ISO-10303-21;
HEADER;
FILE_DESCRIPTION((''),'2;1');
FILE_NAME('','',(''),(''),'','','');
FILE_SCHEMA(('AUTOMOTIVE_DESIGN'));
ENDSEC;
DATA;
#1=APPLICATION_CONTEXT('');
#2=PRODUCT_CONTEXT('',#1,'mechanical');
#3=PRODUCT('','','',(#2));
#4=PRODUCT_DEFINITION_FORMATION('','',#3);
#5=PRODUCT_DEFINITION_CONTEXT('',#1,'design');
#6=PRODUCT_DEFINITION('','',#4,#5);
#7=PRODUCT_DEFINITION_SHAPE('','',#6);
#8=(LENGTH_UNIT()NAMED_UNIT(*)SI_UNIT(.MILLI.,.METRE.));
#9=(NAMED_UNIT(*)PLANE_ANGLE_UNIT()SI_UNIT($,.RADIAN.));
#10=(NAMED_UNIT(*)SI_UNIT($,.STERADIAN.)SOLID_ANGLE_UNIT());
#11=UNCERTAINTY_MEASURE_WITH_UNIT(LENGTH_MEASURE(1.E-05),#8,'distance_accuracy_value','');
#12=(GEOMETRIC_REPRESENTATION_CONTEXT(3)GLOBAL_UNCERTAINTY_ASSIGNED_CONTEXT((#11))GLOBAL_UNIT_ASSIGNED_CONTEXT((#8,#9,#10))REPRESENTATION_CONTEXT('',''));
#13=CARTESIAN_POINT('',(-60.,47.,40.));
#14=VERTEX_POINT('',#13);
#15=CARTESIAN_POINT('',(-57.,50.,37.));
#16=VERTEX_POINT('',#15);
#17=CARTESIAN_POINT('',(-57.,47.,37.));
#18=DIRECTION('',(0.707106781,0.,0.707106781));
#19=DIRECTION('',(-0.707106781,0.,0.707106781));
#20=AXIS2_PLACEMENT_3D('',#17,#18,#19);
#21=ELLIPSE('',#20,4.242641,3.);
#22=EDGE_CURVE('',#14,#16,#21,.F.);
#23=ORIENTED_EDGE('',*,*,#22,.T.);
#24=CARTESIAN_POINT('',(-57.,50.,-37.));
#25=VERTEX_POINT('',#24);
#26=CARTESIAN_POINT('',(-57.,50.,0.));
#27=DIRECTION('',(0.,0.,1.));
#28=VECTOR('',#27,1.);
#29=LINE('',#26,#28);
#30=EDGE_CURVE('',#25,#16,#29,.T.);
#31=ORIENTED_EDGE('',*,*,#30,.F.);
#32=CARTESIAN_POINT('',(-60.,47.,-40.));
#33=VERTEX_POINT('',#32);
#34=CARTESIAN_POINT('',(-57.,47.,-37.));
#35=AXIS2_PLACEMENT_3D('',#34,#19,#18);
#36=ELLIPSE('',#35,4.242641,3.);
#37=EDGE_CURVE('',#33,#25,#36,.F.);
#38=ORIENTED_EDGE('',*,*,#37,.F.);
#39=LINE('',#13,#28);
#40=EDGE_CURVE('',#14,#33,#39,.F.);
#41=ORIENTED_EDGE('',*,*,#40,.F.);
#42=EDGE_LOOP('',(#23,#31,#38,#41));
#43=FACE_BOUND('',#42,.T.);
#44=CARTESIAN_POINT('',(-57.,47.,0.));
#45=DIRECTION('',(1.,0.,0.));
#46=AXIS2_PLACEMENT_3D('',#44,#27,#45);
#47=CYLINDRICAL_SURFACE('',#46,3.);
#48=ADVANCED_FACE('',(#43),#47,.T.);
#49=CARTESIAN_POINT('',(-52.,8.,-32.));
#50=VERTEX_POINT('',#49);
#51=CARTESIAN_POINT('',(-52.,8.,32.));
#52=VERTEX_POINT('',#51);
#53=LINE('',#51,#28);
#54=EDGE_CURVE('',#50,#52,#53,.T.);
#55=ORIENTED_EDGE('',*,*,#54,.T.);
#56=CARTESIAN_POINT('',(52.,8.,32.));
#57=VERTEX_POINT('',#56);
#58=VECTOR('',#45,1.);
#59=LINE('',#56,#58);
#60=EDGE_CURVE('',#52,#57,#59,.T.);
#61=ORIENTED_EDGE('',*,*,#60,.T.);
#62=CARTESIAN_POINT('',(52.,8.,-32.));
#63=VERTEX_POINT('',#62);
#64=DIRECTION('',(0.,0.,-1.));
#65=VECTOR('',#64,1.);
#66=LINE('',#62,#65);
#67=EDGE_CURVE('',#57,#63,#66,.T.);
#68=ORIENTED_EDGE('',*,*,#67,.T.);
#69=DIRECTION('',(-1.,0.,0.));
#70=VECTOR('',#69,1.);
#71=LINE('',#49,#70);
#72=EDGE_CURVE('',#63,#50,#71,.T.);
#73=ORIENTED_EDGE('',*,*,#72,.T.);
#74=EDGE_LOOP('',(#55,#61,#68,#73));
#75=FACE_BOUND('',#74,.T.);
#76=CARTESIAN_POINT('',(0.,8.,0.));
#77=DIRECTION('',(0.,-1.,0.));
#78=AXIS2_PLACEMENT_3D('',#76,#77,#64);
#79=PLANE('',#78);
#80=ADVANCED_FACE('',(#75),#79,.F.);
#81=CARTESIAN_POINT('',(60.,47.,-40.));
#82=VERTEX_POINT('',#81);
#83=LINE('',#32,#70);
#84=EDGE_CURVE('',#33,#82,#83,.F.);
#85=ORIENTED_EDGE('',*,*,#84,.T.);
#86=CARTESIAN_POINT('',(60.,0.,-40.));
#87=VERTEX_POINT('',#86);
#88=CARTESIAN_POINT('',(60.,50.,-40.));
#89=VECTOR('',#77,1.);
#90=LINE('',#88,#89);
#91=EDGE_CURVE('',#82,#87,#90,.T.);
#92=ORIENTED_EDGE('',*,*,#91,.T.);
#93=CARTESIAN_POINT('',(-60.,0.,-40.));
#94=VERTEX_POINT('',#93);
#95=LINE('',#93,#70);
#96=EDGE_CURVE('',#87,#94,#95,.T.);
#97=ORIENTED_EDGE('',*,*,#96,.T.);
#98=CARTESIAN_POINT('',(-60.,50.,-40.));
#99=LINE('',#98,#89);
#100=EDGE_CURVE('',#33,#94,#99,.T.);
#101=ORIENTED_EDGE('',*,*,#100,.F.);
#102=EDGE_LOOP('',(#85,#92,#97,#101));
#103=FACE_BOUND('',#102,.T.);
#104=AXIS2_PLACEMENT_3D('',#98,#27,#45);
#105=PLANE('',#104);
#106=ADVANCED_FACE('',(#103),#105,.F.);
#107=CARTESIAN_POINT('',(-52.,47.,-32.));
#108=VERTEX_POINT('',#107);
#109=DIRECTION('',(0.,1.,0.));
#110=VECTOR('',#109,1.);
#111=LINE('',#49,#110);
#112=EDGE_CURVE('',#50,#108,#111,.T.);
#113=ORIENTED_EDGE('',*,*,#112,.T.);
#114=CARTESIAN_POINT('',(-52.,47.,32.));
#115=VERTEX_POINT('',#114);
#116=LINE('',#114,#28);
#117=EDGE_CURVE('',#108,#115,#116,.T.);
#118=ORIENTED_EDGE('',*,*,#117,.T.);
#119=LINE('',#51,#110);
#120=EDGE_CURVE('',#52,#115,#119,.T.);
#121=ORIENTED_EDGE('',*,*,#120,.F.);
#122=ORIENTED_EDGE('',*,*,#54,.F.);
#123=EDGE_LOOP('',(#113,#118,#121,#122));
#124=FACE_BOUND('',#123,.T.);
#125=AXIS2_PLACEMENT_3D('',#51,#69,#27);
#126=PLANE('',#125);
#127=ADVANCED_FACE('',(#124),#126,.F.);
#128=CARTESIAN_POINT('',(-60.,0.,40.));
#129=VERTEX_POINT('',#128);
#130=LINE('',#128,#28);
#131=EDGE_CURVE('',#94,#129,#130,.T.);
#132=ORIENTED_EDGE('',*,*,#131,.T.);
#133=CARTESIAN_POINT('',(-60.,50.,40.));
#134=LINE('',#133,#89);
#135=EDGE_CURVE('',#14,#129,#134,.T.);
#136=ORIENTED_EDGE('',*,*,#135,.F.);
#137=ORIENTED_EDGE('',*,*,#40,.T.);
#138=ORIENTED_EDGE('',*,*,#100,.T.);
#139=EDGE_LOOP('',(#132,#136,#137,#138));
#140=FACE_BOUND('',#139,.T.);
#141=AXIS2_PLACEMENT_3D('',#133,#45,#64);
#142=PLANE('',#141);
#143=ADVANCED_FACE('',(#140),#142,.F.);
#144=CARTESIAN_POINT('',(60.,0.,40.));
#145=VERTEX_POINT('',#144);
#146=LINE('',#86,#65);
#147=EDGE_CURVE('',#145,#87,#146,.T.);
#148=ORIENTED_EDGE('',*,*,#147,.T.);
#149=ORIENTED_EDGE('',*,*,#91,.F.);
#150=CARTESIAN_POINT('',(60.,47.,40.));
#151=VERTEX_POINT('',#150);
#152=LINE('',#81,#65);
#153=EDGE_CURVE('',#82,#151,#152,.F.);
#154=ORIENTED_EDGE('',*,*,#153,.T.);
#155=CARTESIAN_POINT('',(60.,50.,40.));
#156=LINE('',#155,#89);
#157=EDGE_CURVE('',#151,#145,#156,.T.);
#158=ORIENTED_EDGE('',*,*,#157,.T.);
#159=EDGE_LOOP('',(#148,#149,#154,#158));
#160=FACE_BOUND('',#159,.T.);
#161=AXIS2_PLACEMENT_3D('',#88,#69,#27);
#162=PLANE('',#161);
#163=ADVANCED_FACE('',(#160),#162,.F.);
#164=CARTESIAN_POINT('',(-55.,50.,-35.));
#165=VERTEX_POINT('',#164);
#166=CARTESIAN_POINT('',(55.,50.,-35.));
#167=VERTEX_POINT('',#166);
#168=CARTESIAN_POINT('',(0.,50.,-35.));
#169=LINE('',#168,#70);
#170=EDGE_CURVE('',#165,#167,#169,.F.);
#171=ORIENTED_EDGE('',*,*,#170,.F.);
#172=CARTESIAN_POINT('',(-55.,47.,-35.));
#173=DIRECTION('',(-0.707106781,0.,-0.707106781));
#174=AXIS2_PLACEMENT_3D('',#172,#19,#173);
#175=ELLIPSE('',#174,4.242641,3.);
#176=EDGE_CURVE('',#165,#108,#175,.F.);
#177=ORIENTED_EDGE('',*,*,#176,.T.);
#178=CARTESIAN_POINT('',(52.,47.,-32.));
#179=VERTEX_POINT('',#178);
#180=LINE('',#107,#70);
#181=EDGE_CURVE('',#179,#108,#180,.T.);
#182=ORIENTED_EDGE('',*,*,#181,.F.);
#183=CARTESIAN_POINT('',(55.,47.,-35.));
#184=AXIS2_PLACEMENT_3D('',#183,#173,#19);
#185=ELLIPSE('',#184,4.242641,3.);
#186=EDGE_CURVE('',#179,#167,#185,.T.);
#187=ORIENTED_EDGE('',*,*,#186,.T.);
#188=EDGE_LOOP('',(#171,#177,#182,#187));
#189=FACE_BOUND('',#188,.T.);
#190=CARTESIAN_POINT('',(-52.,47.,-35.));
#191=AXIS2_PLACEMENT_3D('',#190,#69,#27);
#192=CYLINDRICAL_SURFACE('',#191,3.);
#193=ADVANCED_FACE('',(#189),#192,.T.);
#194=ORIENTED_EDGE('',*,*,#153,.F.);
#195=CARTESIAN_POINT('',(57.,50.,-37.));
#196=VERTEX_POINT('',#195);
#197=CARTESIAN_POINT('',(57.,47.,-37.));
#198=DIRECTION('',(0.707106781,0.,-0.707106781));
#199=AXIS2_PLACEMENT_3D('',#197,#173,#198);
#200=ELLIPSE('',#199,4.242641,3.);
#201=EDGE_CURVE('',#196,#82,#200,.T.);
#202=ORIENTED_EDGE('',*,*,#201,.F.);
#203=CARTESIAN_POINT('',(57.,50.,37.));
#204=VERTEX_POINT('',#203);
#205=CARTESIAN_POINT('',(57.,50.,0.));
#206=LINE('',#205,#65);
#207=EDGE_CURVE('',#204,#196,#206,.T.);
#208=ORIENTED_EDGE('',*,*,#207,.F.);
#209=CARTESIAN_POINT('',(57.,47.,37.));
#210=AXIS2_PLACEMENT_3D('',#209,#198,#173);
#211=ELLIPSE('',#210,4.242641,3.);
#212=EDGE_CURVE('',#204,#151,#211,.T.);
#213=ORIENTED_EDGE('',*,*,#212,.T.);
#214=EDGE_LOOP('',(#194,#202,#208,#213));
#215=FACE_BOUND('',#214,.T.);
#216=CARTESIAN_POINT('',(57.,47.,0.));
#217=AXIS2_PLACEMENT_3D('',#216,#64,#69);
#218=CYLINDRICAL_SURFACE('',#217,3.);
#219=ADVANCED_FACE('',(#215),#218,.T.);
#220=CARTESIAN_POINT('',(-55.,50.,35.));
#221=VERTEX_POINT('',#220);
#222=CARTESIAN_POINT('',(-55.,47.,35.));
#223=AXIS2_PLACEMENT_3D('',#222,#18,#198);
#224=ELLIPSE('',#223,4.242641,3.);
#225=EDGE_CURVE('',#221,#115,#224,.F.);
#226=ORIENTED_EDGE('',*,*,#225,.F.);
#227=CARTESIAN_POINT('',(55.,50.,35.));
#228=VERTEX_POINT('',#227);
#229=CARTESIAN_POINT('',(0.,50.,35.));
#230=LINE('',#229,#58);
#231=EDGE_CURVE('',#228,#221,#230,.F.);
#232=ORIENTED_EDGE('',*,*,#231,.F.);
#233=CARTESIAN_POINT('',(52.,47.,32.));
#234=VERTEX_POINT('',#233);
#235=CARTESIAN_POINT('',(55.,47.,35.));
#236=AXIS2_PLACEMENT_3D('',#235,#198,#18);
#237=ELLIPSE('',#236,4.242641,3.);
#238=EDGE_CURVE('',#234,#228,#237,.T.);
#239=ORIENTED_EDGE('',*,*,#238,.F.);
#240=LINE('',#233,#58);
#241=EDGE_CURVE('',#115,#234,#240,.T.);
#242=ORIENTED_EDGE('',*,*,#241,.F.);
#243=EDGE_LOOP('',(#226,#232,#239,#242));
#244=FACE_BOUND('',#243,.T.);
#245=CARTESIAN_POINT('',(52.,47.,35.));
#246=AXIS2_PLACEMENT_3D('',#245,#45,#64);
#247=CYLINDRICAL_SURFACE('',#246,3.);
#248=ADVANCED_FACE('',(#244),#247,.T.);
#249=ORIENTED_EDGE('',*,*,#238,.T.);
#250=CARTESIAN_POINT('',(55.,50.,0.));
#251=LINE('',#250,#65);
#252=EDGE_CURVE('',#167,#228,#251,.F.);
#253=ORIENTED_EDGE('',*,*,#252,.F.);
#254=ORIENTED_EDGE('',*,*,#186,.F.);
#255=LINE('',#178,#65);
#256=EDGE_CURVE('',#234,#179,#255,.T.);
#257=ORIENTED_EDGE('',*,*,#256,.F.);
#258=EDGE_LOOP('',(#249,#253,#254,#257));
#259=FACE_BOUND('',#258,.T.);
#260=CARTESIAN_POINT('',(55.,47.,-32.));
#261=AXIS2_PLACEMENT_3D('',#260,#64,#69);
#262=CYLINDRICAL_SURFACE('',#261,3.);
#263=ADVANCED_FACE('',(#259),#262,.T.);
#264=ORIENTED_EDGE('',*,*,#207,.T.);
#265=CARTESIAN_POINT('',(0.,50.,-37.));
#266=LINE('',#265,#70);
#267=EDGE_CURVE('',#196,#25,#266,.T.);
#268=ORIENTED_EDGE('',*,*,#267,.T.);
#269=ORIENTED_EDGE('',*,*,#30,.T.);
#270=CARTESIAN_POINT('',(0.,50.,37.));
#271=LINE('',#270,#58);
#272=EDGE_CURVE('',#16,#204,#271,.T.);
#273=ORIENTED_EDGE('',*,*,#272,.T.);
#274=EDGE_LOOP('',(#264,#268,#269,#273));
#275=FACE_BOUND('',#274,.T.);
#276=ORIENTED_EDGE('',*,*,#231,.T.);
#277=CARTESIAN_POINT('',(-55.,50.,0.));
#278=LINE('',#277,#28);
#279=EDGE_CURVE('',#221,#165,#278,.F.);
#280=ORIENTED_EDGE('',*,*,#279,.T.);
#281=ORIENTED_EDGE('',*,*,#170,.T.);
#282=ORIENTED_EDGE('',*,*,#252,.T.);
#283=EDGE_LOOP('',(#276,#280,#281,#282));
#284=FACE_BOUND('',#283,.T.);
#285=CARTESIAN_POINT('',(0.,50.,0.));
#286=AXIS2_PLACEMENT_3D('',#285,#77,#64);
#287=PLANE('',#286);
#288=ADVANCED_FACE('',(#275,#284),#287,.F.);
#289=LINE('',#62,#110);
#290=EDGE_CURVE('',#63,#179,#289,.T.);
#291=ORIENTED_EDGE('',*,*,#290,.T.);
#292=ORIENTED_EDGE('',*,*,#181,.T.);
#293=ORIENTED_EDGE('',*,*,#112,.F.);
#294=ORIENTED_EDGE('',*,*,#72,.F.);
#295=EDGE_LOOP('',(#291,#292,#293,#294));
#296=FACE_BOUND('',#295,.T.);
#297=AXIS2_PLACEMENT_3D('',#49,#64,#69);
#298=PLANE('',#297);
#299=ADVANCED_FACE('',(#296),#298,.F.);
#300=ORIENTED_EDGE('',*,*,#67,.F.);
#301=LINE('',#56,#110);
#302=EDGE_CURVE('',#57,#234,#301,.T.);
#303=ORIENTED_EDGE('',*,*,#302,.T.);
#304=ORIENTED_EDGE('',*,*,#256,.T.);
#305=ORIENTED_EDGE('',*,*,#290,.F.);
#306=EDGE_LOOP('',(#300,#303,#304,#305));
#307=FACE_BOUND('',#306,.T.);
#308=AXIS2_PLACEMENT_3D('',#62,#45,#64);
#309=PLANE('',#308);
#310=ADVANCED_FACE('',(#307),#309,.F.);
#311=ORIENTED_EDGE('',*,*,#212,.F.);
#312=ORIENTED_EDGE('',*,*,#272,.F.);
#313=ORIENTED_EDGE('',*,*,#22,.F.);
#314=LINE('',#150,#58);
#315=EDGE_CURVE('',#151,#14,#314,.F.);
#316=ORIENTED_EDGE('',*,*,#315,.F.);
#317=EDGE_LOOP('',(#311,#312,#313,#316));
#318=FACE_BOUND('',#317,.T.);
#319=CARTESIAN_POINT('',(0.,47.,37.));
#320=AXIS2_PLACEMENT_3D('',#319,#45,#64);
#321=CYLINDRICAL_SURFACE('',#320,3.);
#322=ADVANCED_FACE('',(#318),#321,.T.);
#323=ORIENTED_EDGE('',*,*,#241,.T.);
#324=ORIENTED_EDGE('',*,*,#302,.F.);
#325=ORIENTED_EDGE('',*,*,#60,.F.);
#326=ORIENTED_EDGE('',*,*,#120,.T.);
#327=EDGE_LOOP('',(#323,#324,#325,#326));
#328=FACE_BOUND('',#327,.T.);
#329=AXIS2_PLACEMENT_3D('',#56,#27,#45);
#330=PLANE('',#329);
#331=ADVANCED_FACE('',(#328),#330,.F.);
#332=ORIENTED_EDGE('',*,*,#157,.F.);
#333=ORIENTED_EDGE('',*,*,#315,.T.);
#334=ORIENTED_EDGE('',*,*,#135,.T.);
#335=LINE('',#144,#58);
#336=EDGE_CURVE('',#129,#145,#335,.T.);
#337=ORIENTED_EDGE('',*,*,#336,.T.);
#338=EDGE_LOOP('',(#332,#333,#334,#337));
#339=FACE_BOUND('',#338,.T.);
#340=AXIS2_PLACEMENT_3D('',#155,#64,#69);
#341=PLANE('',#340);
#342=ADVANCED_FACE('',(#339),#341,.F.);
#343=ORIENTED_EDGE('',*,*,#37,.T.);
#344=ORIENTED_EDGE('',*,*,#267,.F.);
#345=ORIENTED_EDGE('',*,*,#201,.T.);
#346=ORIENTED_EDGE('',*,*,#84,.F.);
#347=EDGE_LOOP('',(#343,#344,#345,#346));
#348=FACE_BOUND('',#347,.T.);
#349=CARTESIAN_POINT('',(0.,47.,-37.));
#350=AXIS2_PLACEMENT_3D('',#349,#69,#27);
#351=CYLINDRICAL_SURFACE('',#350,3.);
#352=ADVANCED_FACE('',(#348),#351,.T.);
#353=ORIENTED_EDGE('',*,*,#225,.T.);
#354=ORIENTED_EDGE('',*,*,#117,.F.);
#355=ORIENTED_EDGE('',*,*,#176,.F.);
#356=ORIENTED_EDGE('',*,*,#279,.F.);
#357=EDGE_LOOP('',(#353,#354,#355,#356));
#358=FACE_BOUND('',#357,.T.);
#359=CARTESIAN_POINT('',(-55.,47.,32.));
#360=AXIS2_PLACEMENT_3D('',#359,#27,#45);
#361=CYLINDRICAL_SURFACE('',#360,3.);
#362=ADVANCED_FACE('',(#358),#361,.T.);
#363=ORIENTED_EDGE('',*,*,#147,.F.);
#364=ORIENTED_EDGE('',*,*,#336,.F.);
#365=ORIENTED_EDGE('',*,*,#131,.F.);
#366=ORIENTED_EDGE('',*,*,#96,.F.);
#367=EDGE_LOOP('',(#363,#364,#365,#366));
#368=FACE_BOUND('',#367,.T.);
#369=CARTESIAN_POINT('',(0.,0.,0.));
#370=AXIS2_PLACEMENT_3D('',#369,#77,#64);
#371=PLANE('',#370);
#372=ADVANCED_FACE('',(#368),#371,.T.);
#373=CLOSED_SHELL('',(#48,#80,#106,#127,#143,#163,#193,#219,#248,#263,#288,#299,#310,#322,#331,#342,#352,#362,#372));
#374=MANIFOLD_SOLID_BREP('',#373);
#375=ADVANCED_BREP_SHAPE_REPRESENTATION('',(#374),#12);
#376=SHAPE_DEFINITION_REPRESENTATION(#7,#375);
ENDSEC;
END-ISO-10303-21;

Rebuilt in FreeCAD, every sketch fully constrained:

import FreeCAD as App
import Part
import Sketcher
from FreeCAD import Vector


def edges_at(feature, points):
    """Names of the edges that pass closest to the given points."""
    edges = feature.Shape.Edges
    near = lambda p: min(range(len(edges)), key=lambda i: edges[i].distToShape(Part.Vertex(*p))[0])
    return sorted({f"Edge{near(p) + 1}" for p in points})

doc = App.newDocument("Part")
params = doc.addObject("Spreadsheet::Sheet", "Params")
for row, (alias, value) in enumerate([
    ("sketch1_width", "120 mm"),
    ("sketch1_height", "80 mm"),
    ("pad1_length", "50 mm"),
    ("sketch2_width", "104 mm"),
    ("sketch2_height", "64 mm"),
    ("pocket1_length", "42 mm"),
    ("fillet_radius", "3 mm"),
], start=1):
    params.set(f"A{row}", alias)
    params.set(f"B{row}", "=" + value)
    params.setAlias(f"B{row}", alias)

body = doc.addObject("PartDesign::Body", "Body")

# Sketch on XZ plane
sketch1 = body.newObject("Sketcher::SketchObject", "Sketch")
sketch1.AttachmentSupport = (doc.getObject("XZ_Plane"), [""])
sketch1.MapMode = "FlatFace"
sketch1.addGeometry([
    Part.LineSegment(Vector(-60, -40, 0), Vector(-60, 40, 0)),
    Part.LineSegment(Vector(-60, 40, 0), Vector(60, 40, 0)),
    Part.LineSegment(Vector(60, 40, 0), Vector(60, -40, 0)),
    Part.LineSegment(Vector(60, -40, 0), Vector(-60, -40, 0)),
], False)
sketch1.addConstraint([
    Sketcher.Constraint("Coincident", 0, 2, 1, 1),
    Sketcher.Constraint("Coincident", 1, 2, 2, 1),
    Sketcher.Constraint("Coincident", 2, 2, 3, 1),
    Sketcher.Constraint("Coincident", 3, 2, 0, 1),
    Sketcher.Constraint("Vertical", 0),
    Sketcher.Constraint("Horizontal", 1),
    Sketcher.Constraint("Vertical", 2),
    Sketcher.Constraint("Horizontal", 3),
    Sketcher.Constraint("Symmetric", 0, 2, 2, 2, -1, 1),
    Sketcher.Constraint("DistanceX", 1, 1, 1, 2, 120.0),
    Sketcher.Constraint("DistanceY", 0, 1, 0, 2, 80.0),
])
sketch1.setExpression("Constraints[9]", "Params.sketch1_width")
sketch1.setExpression("Constraints[10]", "Params.sketch1_height")
pad1 = body.newObject("PartDesign::Pad", "Pad")
pad1.Profile = sketch1
pad1.setExpression("Length", "Params.pad1_length")
pad1.Reversed = True

# Sketch on XZ plane
sketch2 = body.newObject("Sketcher::SketchObject", "Sketch001")
sketch2.AttachmentSupport = (doc.getObject("XZ_Plane"), [""])
sketch2.MapMode = "FlatFace"
sketch2.AttachmentOffset = App.Placement(Vector(0, 0, -50), App.Rotation())
sketch2.addGeometry([
    Part.LineSegment(Vector(-52, -32, 0), Vector(-52, 32, 0)),
    Part.LineSegment(Vector(-52, 32, 0), Vector(52, 32, 0)),
    Part.LineSegment(Vector(52, 32, 0), Vector(52, -32, 0)),
    Part.LineSegment(Vector(52, -32, 0), Vector(-52, -32, 0)),
], False)
sketch2.addConstraint([
    Sketcher.Constraint("Coincident", 0, 2, 1, 1),
    Sketcher.Constraint("Coincident", 1, 2, 2, 1),
    Sketcher.Constraint("Coincident", 2, 2, 3, 1),
    Sketcher.Constraint("Coincident", 3, 2, 0, 1),
    Sketcher.Constraint("Vertical", 0),
    Sketcher.Constraint("Horizontal", 1),
    Sketcher.Constraint("Vertical", 2),
    Sketcher.Constraint("Horizontal", 3),
    Sketcher.Constraint("Symmetric", 0, 2, 2, 2, -1, 1),
    Sketcher.Constraint("DistanceX", 1, 1, 1, 2, 104.0),
    Sketcher.Constraint("DistanceY", 0, 1, 0, 2, 64.0),
])
sketch2.setExpression("Constraints[9]", "Params.sketch2_width")
sketch2.setExpression("Constraints[10]", "Params.sketch2_height")
pocket1 = body.newObject("PartDesign::Pocket", "Pocket")
pocket1.Profile = sketch2
pocket1.setExpression("Length", "Params.pocket1_length")
pocket1.Reversed = True
doc.recompute()

fillet = body.newObject("PartDesign::Fillet", "Fillet")
fillet.Base = (pocket1, edges_at(pocket1, [
    (60, 50, 0),
    (0, 50, -40),
    (-52, 50, 0),
    (0, 50, 32),
    (52, 50, 0),
    (0, 50, -32),
    (-60, 50, 0),
    (0, 50, 40),
]))
fillet.setExpression("Radius", "Params.fillet_radius")

doc.recompute()
